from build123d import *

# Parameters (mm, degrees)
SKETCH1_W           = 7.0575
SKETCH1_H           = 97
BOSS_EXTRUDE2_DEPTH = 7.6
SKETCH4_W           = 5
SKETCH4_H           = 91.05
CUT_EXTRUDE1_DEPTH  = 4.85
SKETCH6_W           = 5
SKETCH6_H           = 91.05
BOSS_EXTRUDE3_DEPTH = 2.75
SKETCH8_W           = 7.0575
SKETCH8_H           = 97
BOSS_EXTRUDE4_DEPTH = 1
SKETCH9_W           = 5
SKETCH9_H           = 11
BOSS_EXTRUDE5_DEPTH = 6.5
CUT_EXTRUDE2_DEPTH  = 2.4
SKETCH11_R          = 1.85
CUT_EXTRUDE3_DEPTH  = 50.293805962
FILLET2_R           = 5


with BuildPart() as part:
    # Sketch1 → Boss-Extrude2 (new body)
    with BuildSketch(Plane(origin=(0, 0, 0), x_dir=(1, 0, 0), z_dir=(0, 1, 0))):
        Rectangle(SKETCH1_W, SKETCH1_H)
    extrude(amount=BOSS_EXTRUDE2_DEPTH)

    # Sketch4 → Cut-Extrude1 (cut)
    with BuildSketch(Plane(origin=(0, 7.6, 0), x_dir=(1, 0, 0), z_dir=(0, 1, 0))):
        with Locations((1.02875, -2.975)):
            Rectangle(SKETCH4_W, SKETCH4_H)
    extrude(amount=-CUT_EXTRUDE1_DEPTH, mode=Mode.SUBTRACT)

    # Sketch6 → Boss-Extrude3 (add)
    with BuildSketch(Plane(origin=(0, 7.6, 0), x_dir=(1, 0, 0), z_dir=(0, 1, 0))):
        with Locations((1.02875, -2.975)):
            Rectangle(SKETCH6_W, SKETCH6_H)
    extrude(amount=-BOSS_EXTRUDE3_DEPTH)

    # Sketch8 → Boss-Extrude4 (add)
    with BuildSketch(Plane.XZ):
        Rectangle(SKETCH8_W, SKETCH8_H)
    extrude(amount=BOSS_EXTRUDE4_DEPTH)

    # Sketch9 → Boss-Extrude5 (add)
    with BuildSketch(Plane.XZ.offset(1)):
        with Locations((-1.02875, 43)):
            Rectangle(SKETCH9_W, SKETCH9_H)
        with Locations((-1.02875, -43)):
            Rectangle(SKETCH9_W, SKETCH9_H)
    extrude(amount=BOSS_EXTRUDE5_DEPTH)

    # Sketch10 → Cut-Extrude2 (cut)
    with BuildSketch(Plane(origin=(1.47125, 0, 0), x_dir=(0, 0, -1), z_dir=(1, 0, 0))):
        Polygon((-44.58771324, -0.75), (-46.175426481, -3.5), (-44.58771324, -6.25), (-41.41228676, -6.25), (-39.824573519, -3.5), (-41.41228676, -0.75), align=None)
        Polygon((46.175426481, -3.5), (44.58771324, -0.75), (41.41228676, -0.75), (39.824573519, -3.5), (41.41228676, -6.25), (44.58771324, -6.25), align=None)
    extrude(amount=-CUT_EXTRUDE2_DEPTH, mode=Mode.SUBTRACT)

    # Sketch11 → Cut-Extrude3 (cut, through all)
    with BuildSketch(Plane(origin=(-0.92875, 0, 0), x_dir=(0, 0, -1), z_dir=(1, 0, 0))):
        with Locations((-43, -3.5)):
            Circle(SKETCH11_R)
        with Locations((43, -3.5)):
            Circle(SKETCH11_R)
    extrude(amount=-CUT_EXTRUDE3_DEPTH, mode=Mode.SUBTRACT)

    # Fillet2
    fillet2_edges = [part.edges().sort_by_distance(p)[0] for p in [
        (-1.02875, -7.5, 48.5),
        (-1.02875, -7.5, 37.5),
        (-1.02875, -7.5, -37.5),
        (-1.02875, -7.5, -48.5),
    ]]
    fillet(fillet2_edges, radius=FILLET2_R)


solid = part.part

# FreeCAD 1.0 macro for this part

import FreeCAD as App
import Part
import Sketcher
from FreeCAD import Vector
Q = App.Units.Quantity


def edges_at(feature, points):
    """Names of the edges that pass closest to the given points."""
    edges = feature.Shape.Edges
    near = lambda p: min(range(len(edges)), key=lambda i: edges[i].distToShape(Part.Vertex(*p))[0])
    return sorted({f"Edge{near(p) + 1}" for p in points})

doc = App.newDocument("Part")
body = doc.addObject("PartDesign::Body", "Body")

# Sketch on XZ plane
sketch1 = body.newObject("Sketcher::SketchObject", "Sketch")
sketch1.AttachmentSupport = (doc.getObject("XZ_Plane"), [""])
sketch1.MapMode = "FlatFace"
sketch1.addGeometry(Part.LineSegment(Vector(-4, -48, 0), Vector(-4, 48, 0)), False)
sketch1.addGeometry(Part.LineSegment(Vector(-4, 48, 0), Vector(4, 48, 0)), False)
sketch1.addGeometry(Part.LineSegment(Vector(4, 48, 0), Vector(4, -48, 0)), False)
sketch1.addGeometry(Part.LineSegment(Vector(4, -48, 0), Vector(-4, -48, 0)), False)
sketch1.addConstraint(Sketcher.Constraint("Coincident", 0, 2, 1, 1))
sketch1.addConstraint(Sketcher.Constraint("Coincident", 1, 2, 2, 1))
sketch1.addConstraint(Sketcher.Constraint("Coincident", 2, 2, 3, 1))
sketch1.addConstraint(Sketcher.Constraint("Coincident", 3, 2, 0, 1))
sketch1.addConstraint(Sketcher.Constraint("Vertical", 0))
sketch1.addConstraint(Sketcher.Constraint("Horizontal", 1))
sketch1.addConstraint(Sketcher.Constraint("Vertical", 2))
sketch1.addConstraint(Sketcher.Constraint("Horizontal", 3))
sketch1.addConstraint(Sketcher.Constraint("Symmetric", 0, 2, 2, 2, -1, 1))
sketch1.addConstraint(Sketcher.Constraint("DistanceY", 0, 1, 0, 2, 97.0))
sketch1.addConstraint(Sketcher.Constraint("DistanceX", 1, 1, 1, 2, 7.0575))
pad1 = body.newObject("PartDesign::Pad", "Pad")
pad1.Profile = sketch1
pad1.Length = 7.6
pad1.Reversed = True

# Sketch on XZ plane
sketch2 = body.newObject("Sketcher::SketchObject", "Sketch001")
sketch2.AttachmentSupport = (doc.getObject("XZ_Plane"), [""])
sketch2.MapMode = "FlatFace"
sketch2.AttachmentOffset = App.Placement(Vector(0, 0, -7.6), App.Rotation())
sketch2.addGeometry(Part.LineSegment(Vector(-1, -43, 0), Vector(-1, 48, 0)), False)
sketch2.addGeometry(Part.LineSegment(Vector(-1, 48, 0), Vector(4, 48, 0)), False)
sketch2.addGeometry(Part.LineSegment(Vector(4, 48, 0), Vector(4, -43, 0)), False)
sketch2.addGeometry(Part.LineSegment(Vector(4, -43, 0), Vector(-1, -43, 0)), False)
sketch2.addConstraint(Sketcher.Constraint("Coincident", 0, 2, 1, 1))
sketch2.addConstraint(Sketcher.Constraint("Coincident", 1, 2, 2, 1))
sketch2.addConstraint(Sketcher.Constraint("Coincident", 2, 2, 3, 1))
sketch2.addConstraint(Sketcher.Constraint("Coincident", 3, 2, 0, 1))
sketch2.addConstraint(Sketcher.Constraint("Vertical", 0))
sketch2.addConstraint(Sketcher.Constraint("Horizontal", 1))
sketch2.addConstraint(Sketcher.Constraint("Vertical", 2))
sketch2.addConstraint(Sketcher.Constraint("Horizontal", 3))
sketch2.addConstraint(Sketcher.Constraint("DistanceX", 1, 1, 1, 2, 5.0))
sketch2.addConstraint(Sketcher.Constraint("DistanceY", 0, 1, 0, 2, 91.05))
sketch2.addConstraint(Sketcher.Constraint("DistanceY", -1, 1, 0, 2, 48.5))
sketch2.addConstraint(Sketcher.Constraint("DistanceX", 0, 2, -1, 1, 1.47125))
pocket1 = body.newObject("PartDesign::Pocket", "Pocket")
pocket1.Profile = sketch2
pocket1.Length = 4.85
pocket1.Reversed = True

# Sketch on XZ plane
sketch3 = body.newObject("Sketcher::SketchObject", "Sketch002")
sketch3.AttachmentSupport = (doc.getObject("XZ_Plane"), [""])
sketch3.MapMode = "FlatFace"
sketch3.AttachmentOffset = App.Placement(Vector(0, 0, -7.6), App.Rotation())
sketch3.addGeometry(Part.LineSegment(Vector(-1, -43, 0), Vector(-1, 48, 0)), False)
sketch3.addGeometry(Part.LineSegment(Vector(-1, 48, 0), Vector(4, 48, 0)), False)
sketch3.addGeometry(Part.LineSegment(Vector(4, 48, 0), Vector(4, -43, 0)), False)
sketch3.addGeometry(Part.LineSegment(Vector(4, -43, 0), Vector(-1, -43, 0)), False)
sketch3.addConstraint(Sketcher.Constraint("Coincident", 0, 2, 1, 1))
sketch3.addConstraint(Sketcher.Constraint("Coincident", 1, 2, 2, 1))
sketch3.addConstraint(Sketcher.Constraint("Coincident", 2, 2, 3, 1))
sketch3.addConstraint(Sketcher.Constraint("Coincident", 3, 2, 0, 1))
sketch3.addConstraint(Sketcher.Constraint("Vertical", 0))
sketch3.addConstraint(Sketcher.Constraint("Horizontal", 1))
sketch3.addConstraint(Sketcher.Constraint("Vertical", 2))
sketch3.addConstraint(Sketcher.Constraint("Horizontal", 3))
sketch3.addConstraint(Sketcher.Constraint("DistanceX", 1, 1, 1, 2, 5.0))
sketch3.addConstraint(Sketcher.Constraint("DistanceY", 0, 1, 0, 2, 91.05))
sketch3.addConstraint(Sketcher.Constraint("DistanceY", -1, 1, 0, 2, 48.5))
sketch3.addConstraint(Sketcher.Constraint("DistanceX", 0, 2, -1, 1, 1.47125))
pad2 = body.newObject("PartDesign::Pad", "Pad001")
pad2.Profile = sketch3
pad2.Length = 2.75

# Sketch on XZ plane
sketch4 = body.newObject("Sketcher::SketchObject", "Sketch003")
sketch4.AttachmentSupport = (doc.getObject("XZ_Plane"), [""])
sketch4.MapMode = "FlatFace"
sketch4.addGeometry(Part.LineSegment(Vector(-4, 48, 0), Vector(-4, -48, 0)), False)
sketch4.addGeometry(Part.LineSegment(Vector(-4, -48, 0), Vector(4, -48, 0)), False)
sketch4.addGeometry(Part.LineSegment(Vector(4, -48, 0), Vector(4, 48, 0)), False)
sketch4.addGeometry(Part.LineSegment(Vector(4, 48, 0), Vector(-4, 48, 0)), False)
sketch4.addConstraint(Sketcher.Constraint("Coincident", 0, 2, 1, 1))
sketch4.addConstraint(Sketcher.Constraint("Coincident", 1, 2, 2, 1))
sketch4.addConstraint(Sketcher.Constraint("Coincident", 2, 2, 3, 1))
sketch4.addConstraint(Sketcher.Constraint("Coincident", 3, 2, 0, 1))
sketch4.addConstraint(Sketcher.Constraint("Vertical", 0))
sketch4.addConstraint(Sketcher.Constraint("Horizontal", 1))
sketch4.addConstraint(Sketcher.Constraint("Vertical", 2))
sketch4.addConstraint(Sketcher.Constraint("Horizontal", 3))
sketch4.addConstraint(Sketcher.Constraint("Symmetric", 0, 2, 2, 2, -1, 1))
sketch4.addConstraint(Sketcher.Constraint("DistanceY", 0, 2, 0, 1, 97.0))
sketch4.addConstraint(Sketcher.Constraint("DistanceX", 1, 1, 1, 2, 7.0575))
pad3 = body.newObject("PartDesign::Pad", "Pad002")
pad3.Profile = sketch4
pad3.Length = 1

# Sketch on XZ plane
sketch5 = body.newObject("Sketcher::SketchObject", "Sketch004")
sketch5.AttachmentSupport = (doc.getObject("XZ_Plane"), [""])
sketch5.MapMode = "FlatFace"
sketch5.AttachmentOffset = App.Placement(Vector(0, 0, 1), App.Rotation())
sketch5.addGeometry(Part.LineSegment(Vector(-4, 48, 0), Vector(-4, 38, 0)), False)
sketch5.addGeometry(Part.LineSegment(Vector(-4, 38, 0), Vector(1, 38, 0)), False)
sketch5.addGeometry(Part.LineSegment(Vector(1, 38, 0), Vector(1, 48, 0)), False)
sketch5.addGeometry(Part.LineSegment(Vector(1, 48, 0), Vector(-4, 48, 0)), False)
sketch5.addGeometry(Part.LineSegment(Vector(-4, -38, 0), Vector(-4, -48, 0)), False)
sketch5.addGeometry(Part.LineSegment(Vector(-4, -48, 0), Vector(1, -48, 0)), False)
sketch5.addGeometry(Part.LineSegment(Vector(1, -48, 0), Vector(1, -38, 0)), False)
sketch5.addGeometry(Part.LineSegment(Vector(1, -38, 0), Vector(-4, -38, 0)), False)
sketch5.addConstraint(Sketcher.Constraint("Coincident", 0, 2, 1, 1))
sketch5.addConstraint(Sketcher.Constraint("Coincident", 1, 2, 2, 1))
sketch5.addConstraint(Sketcher.Constraint("Coincident", 2, 2, 3, 1))
sketch5.addConstraint(Sketcher.Constraint("Coincident", 3, 2, 0, 1))
sketch5.addConstraint(Sketcher.Constraint("Coincident", 4, 2, 5, 1))
sketch5.addConstraint(Sketcher.Constraint("Coincident", 5, 2, 6, 1))
sketch5.addConstraint(Sketcher.Constraint("Coincident", 6, 2, 7, 1))
sketch5.addConstraint(Sketcher.Constraint("Coincident", 7, 2, 4, 1))
sketch5.addConstraint(Sketcher.Constraint("Vertical", 0))
sketch5.addConstraint(Sketcher.Constraint("Horizontal", 1))
sketch5.addConstraint(Sketcher.Constraint("Vertical", 2))
sketch5.addConstraint(Sketcher.Constraint("Horizontal", 3))
sketch5.addConstraint(Sketcher.Constraint("Vertical", 4))
sketch5.addConstraint(Sketcher.Constraint("Horizontal", 5))
sketch5.addConstraint(Sketcher.Constraint("Vertical", 6))
sketch5.addConstraint(Sketcher.Constraint("Horizontal", 7))
sketch5.addConstraint(Sketcher.Constraint("Symmetric", 3, 2, 4, 2, -1))
sketch5.addConstraint(Sketcher.Constraint("Symmetric", 1, 2, 6, 2, -1))
sketch5.addConstraint(Sketcher.Constraint("DistanceX", 1, 1, 1, 2, 5.0))
sketch5.addConstraint(Sketcher.Constraint("DistanceY", 0, 2, 0, 1, 11.0))
sketch5.addConstraint(Sketcher.Constraint("DistanceY", 4, 2, 0, 2, 86.0))
sketch5.addConstraint(Sketcher.Constraint("DistanceX", 0, 2, -1, 1, 3.52875))
pad4 = body.newObject("PartDesign::Pad", "Pad003")
pad4.Profile = sketch5
pad4.Length = 6.5

# Sketch on YZ plane
sketch6 = body.newObject("Sketcher::SketchObject", "Sketch005")
sketch6.AttachmentSupport = (doc.getObject("YZ_Plane"), [""])
sketch6.MapMode = "FlatFace"
sketch6.AttachmentOffset = App.Placement(Vector(0, 0, 1.47125), App.Rotation())
sketch6.addGeometry(Part.LineSegment(Vector(-0.8, 44.6, 0), Vector(-3.5, 46.2, 0)), False)
sketch6.addGeometry(Part.LineSegment(Vector(-3.5, 46.2, 0), Vector(-6.2, 44.6, 0)), False)
sketch6.addGeometry(Part.LineSegment(Vector(-6.2, 44.6, 0), Vector(-6.2, 41.4, 0)), False)
sketch6.addGeometry(Part.LineSegment(Vector(-6.2, 41.4, 0), Vector(-3.5, 39.8, 0)), False)
sketch6.addGeometry(Part.LineSegment(Vector(-3.5, 39.8, 0), Vector(-0.8, 41.4, 0)), False)
sketch6.addGeometry(Part.LineSegment(Vector(-0.8, 41.4, 0), Vector(-0.8, 44.6, 0)), False)
sketch6.addGeometry(Part.LineSegment(Vector(-3.5, -46.2, 0), Vector(-0.8, -44.6, 0)), False)
sketch6.addGeometry(Part.LineSegment(Vector(-0.8, -44.6, 0), Vector(-0.8, -41.4, 0)), False)
sketch6.addGeometry(Part.LineSegment(Vector(-0.8, -41.4, 0), Vector(-3.5, -39.8, 0)), False)
sketch6.addGeometry(Part.LineSegment(Vector(-3.5, -39.8, 0), Vector(-6.2, -41.4, 0)), False)
sketch6.addGeometry(Part.LineSegment(Vector(-6.2, -41.4, 0), Vector(-6.2, -44.6, 0)), False)
sketch6.addGeometry(Part.LineSegment(Vector(-6.2, -44.6, 0), Vector(-3.5, -46.2, 0)), False)
sketch6.addConstraint(Sketcher.Constraint("Coincident", 0, 2, 1, 1))
sketch6.addConstraint(Sketcher.Constraint("Coincident", 1, 2, 2, 1))
sketch6.addConstraint(Sketcher.Constraint("Coincident", 2, 2, 3, 1))
sketch6.addConstraint(Sketcher.Constraint("Coincident", 3, 2, 4, 1))
sketch6.addConstraint(Sketcher.Constraint("Coincident", 4, 2, 5, 1))
sketch6.addConstraint(Sketcher.Constraint("Coincident", 5, 2, 0, 1))
sketch6.addConstraint(Sketcher.Constraint("Coincident", 6, 2, 7, 1))
sketch6.addConstraint(Sketcher.Constraint("Coincident", 7, 2, 8, 1))
sketch6.addConstraint(Sketcher.Constraint("Coincident", 8, 2, 9, 1))
sketch6.addConstraint(Sketcher.Constraint("Coincident", 9, 2, 10, 1))
sketch6.addConstraint(Sketcher.Constraint("Coincident", 10, 2, 11, 1))
sketch6.addConstraint(Sketcher.Constraint("Coincident", 11, 2, 6, 1))
sketch6.addConstraint(Sketcher.Constraint("Vertical", 2))
sketch6.addConstraint(Sketcher.Constraint("Vertical", 5))
sketch6.addConstraint(Sketcher.Constraint("Vertical", 7))
sketch6.addConstraint(Sketcher.Constraint("Vertical", 10))
sketch6.addConstraint(Sketcher.Constraint("Symmetric", 5, 2, 6, 2, -1))
sketch6.addConstraint(Sketcher.Constraint("Symmetric", 3, 2, 8, 2, -1))
sketch6.addConstraint(Sketcher.Constraint("Symmetric", 2, 2, 9, 2, -1))
sketch6.addConstraint(Sketcher.Constraint("Symmetric", 0, 2, 11, 2, -1))
sketch6.addConstraint(Sketcher.Constraint("Parallel", 0, 3))
sketch6.addConstraint(Sketcher.Constraint("Parallel", 1, 4))
sketch6.addConstraint(Sketcher.Constraint("Parallel", 4, 6))
sketch6.addConstraint(Sketcher.Constraint("Parallel", 3, 8))
sketch6.addConstraint(Sketcher.Constraint("Parallel", 8, 11))
sketch6.addConstraint(Sketcher.Constraint("Horizontal", 2, 2, 4, 2))
sketch6.addConstraint(Sketcher.Constraint("Horizontal", 1, 2, 5, 2))
sketch6.addConstraint(Sketcher.Constraint("Angle", 0, Q("150 deg")))
sketch6.addConstraint(Sketcher.Constraint("DistanceY", 6, 2, 4, 2, 86.0))
sketch6.addConstraint(Sketcher.Constraint("DistanceX", 0, 2, -1, 1, 3.5))
sketch6.addConstraint(Sketcher.Constraint("DistanceX", 2, 2, 4, 2, 5.5))
sketch6.addConstraint(Sketcher.Constraint("DistanceY", 2, 2, 2, 1, 3.175426))
pocket2 = body.newObject("PartDesign::Pocket", "Pocket001")
pocket2.Profile = sketch6
pocket2.Length = 2.4

# Sketch on YZ plane
sketch7 = body.newObject("Sketcher::SketchObject", "Sketch006")
sketch7.AttachmentSupport = (doc.getObject("YZ_Plane"), [""])
sketch7.MapMode = "FlatFace"
sketch7.AttachmentOffset = App.Placement(Vector(0, 0, -0.92875), App.Rotation())
sketch7.addGeometry(Part.Circle(Vector(-3.5, 43, 0), Vector(0, 0, 1), 1.9), False)
sketch7.addGeometry(Part.Circle(Vector(-3.5, -43, 0), Vector(0, 0, 1), 1.9), False)
sketch7.addConstraint(Sketcher.Constraint("Equal", 0, 1))
sketch7.addConstraint(Sketcher.Constraint("Symmetric", 0, 3, 1, 3, -1))
sketch7.addConstraint(Sketcher.Constraint("Diameter", 0, 3.7))
sketch7.addConstraint(Sketcher.Constraint("DistanceY", -1, 1, 0, 3, 43.0))
sketch7.addConstraint(Sketcher.Constraint("DistanceX", 0, 3, -1, 1, 3.5))
pocket3 = body.newObject("PartDesign::Pocket", "Pocket002")
pocket3.Profile = sketch7
pocket3.Type = "ThroughAll"
doc.recompute()

fillet = body.newObject("PartDesign::Fillet", "Fillet")
fillet.Base = (pocket3, edges_at(pocket3, [
    (-1.029, -7.5, 48.5),
    (-1.029, -7.5, 37.5),
    (-1.029, -7.5, -37.5),
    (-1.029, -7.5, -48.5),
]))
fillet.Radius = 5

doc.recompute()
